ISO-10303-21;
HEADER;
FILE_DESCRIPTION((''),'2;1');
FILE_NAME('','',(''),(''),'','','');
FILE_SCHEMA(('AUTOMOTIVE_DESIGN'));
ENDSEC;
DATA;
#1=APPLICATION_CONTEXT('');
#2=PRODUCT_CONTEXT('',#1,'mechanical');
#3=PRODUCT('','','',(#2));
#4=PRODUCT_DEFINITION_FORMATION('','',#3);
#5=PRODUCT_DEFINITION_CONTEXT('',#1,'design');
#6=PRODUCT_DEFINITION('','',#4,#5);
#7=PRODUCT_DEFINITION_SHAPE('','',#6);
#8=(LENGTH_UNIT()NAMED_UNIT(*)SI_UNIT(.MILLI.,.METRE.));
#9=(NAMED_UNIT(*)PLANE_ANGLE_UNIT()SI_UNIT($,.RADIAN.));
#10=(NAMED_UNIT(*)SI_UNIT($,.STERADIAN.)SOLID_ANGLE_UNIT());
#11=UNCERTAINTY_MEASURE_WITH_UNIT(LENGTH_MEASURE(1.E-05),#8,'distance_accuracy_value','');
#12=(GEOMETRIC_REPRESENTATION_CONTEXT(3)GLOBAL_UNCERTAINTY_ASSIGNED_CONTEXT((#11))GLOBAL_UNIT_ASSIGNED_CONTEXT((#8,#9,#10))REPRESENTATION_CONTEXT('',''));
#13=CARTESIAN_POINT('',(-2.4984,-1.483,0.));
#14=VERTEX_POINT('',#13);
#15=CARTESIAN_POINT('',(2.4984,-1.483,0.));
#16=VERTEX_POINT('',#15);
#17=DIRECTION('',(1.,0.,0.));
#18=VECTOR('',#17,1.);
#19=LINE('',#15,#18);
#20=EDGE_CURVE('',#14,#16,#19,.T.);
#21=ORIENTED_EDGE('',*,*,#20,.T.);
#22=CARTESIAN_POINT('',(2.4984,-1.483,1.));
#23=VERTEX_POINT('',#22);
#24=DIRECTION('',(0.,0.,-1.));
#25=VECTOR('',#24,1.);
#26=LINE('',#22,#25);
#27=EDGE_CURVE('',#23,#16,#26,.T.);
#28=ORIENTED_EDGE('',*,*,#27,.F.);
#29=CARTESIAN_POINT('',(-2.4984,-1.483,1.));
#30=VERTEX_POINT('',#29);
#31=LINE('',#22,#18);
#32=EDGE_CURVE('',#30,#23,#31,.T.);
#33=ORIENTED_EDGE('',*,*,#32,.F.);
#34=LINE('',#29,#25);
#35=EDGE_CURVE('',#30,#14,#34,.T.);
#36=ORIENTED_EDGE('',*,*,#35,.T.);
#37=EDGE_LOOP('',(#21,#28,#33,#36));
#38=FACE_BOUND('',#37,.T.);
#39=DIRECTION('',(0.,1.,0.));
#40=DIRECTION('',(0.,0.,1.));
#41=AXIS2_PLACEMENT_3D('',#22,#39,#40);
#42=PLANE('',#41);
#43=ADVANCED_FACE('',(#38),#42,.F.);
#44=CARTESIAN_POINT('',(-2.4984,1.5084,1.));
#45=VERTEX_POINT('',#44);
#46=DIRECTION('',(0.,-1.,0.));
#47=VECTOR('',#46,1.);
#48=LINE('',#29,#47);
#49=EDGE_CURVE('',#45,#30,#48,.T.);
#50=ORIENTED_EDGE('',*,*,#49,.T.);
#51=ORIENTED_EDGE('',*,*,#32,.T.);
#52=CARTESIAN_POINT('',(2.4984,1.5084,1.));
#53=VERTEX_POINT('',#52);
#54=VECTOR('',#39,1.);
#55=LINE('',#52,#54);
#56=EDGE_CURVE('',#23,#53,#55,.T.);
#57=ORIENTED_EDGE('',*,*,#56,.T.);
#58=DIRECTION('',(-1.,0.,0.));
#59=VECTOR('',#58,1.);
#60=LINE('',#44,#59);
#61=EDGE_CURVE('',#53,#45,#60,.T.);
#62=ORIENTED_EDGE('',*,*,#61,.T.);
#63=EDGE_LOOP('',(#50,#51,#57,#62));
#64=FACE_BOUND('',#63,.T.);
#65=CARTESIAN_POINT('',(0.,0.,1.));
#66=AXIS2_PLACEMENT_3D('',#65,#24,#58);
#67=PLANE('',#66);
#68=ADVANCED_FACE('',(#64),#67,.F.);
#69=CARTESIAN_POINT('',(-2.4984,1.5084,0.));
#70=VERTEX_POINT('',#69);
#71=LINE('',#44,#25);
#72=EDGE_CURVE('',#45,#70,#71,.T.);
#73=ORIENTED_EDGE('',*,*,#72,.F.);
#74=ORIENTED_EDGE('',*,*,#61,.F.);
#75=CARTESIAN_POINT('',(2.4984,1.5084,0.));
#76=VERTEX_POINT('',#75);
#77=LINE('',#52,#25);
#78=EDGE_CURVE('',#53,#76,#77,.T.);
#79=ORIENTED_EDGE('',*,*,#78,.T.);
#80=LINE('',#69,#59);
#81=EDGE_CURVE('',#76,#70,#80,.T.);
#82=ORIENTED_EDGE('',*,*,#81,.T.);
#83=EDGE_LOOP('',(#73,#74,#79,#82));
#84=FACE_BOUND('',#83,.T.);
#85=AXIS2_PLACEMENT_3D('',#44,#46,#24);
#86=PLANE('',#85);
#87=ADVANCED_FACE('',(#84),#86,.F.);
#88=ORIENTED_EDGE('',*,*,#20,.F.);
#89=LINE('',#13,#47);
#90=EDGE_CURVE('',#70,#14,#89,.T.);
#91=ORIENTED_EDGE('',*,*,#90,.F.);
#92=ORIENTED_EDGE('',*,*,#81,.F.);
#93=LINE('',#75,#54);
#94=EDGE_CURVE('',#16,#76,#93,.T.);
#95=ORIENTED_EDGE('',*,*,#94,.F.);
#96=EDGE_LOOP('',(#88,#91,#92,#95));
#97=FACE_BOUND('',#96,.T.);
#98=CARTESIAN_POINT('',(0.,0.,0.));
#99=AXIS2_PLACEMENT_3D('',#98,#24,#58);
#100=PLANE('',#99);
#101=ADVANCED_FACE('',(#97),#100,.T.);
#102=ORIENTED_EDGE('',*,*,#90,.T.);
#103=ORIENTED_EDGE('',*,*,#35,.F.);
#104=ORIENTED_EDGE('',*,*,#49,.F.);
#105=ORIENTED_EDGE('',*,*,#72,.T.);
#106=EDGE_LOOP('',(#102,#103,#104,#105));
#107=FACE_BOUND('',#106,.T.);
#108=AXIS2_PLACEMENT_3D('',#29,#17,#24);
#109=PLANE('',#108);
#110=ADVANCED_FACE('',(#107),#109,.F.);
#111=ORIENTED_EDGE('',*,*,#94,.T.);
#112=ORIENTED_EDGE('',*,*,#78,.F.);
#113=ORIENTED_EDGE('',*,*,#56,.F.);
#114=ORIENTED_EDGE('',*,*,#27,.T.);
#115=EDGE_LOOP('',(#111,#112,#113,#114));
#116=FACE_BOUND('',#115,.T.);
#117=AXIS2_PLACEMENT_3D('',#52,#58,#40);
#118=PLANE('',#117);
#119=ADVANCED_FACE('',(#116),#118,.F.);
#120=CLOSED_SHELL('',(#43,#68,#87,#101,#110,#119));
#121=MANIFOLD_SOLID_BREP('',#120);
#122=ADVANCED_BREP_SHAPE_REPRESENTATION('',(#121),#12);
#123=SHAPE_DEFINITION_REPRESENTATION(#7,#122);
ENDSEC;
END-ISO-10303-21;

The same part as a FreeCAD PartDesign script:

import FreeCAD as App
import Part
import Sketcher

V = App.Vector

doc = App.newDocument("Part")
body = doc.addObject("PartDesign::Body", "Body")

# Sketch on XY plane
sketch1 = doc.addObject("Sketcher::SketchObject", "Sketch")
body.addObject(sketch1)
sketch1.AttachmentSupport = (doc.XY_Plane, [""])
sketch1.MapMode = "FlatFace"
sketch1.addGeometry([
    Part.LineSegment(V(-2.5, 1.5, 0), V(-2.5, -1.5, 0)),
    Part.LineSegment(V(-2.5, -1.5, 0), V(2.5, -1.5, 0)),
    Part.LineSegment(V(2.5, -1.5, 0), V(2.5, 1.5, 0)),
    Part.LineSegment(V(2.5, 1.5, 0), V(-2.5, 1.5, 0)),
], False)
sketch1.addConstraint([
    Sketcher.Constraint("Coincident", 0, 2, 1, 1),
    Sketcher.Constraint("Coincident", 1, 2, 2, 1),
    Sketcher.Constraint("Coincident", 2, 2, 3, 1),
    Sketcher.Constraint("Coincident", 3, 2, 0, 1),
    Sketcher.Constraint("Vertical", 0),
    Sketcher.Constraint("Horizontal", 1),
    Sketcher.Constraint("Vertical", 2),
    Sketcher.Constraint("Horizontal", 3),
    Sketcher.Constraint("DistanceX", 1, 1, 1, 2, 4.9968),
    Sketcher.Constraint("DistanceY", 0, 2, 0, 1, 2.9914),
    Sketcher.Constraint("DistanceY", 0, 2, -1, 1, 1.483),
    Sketcher.Constraint("DistanceX", 0, 2, -1, 1, 2.4984),
])
pad1 = doc.addObject("PartDesign::Pad", "Pad")
body.addObject(pad1)
pad1.Profile = sketch1
pad1.Length = 1

doc.recompute()
